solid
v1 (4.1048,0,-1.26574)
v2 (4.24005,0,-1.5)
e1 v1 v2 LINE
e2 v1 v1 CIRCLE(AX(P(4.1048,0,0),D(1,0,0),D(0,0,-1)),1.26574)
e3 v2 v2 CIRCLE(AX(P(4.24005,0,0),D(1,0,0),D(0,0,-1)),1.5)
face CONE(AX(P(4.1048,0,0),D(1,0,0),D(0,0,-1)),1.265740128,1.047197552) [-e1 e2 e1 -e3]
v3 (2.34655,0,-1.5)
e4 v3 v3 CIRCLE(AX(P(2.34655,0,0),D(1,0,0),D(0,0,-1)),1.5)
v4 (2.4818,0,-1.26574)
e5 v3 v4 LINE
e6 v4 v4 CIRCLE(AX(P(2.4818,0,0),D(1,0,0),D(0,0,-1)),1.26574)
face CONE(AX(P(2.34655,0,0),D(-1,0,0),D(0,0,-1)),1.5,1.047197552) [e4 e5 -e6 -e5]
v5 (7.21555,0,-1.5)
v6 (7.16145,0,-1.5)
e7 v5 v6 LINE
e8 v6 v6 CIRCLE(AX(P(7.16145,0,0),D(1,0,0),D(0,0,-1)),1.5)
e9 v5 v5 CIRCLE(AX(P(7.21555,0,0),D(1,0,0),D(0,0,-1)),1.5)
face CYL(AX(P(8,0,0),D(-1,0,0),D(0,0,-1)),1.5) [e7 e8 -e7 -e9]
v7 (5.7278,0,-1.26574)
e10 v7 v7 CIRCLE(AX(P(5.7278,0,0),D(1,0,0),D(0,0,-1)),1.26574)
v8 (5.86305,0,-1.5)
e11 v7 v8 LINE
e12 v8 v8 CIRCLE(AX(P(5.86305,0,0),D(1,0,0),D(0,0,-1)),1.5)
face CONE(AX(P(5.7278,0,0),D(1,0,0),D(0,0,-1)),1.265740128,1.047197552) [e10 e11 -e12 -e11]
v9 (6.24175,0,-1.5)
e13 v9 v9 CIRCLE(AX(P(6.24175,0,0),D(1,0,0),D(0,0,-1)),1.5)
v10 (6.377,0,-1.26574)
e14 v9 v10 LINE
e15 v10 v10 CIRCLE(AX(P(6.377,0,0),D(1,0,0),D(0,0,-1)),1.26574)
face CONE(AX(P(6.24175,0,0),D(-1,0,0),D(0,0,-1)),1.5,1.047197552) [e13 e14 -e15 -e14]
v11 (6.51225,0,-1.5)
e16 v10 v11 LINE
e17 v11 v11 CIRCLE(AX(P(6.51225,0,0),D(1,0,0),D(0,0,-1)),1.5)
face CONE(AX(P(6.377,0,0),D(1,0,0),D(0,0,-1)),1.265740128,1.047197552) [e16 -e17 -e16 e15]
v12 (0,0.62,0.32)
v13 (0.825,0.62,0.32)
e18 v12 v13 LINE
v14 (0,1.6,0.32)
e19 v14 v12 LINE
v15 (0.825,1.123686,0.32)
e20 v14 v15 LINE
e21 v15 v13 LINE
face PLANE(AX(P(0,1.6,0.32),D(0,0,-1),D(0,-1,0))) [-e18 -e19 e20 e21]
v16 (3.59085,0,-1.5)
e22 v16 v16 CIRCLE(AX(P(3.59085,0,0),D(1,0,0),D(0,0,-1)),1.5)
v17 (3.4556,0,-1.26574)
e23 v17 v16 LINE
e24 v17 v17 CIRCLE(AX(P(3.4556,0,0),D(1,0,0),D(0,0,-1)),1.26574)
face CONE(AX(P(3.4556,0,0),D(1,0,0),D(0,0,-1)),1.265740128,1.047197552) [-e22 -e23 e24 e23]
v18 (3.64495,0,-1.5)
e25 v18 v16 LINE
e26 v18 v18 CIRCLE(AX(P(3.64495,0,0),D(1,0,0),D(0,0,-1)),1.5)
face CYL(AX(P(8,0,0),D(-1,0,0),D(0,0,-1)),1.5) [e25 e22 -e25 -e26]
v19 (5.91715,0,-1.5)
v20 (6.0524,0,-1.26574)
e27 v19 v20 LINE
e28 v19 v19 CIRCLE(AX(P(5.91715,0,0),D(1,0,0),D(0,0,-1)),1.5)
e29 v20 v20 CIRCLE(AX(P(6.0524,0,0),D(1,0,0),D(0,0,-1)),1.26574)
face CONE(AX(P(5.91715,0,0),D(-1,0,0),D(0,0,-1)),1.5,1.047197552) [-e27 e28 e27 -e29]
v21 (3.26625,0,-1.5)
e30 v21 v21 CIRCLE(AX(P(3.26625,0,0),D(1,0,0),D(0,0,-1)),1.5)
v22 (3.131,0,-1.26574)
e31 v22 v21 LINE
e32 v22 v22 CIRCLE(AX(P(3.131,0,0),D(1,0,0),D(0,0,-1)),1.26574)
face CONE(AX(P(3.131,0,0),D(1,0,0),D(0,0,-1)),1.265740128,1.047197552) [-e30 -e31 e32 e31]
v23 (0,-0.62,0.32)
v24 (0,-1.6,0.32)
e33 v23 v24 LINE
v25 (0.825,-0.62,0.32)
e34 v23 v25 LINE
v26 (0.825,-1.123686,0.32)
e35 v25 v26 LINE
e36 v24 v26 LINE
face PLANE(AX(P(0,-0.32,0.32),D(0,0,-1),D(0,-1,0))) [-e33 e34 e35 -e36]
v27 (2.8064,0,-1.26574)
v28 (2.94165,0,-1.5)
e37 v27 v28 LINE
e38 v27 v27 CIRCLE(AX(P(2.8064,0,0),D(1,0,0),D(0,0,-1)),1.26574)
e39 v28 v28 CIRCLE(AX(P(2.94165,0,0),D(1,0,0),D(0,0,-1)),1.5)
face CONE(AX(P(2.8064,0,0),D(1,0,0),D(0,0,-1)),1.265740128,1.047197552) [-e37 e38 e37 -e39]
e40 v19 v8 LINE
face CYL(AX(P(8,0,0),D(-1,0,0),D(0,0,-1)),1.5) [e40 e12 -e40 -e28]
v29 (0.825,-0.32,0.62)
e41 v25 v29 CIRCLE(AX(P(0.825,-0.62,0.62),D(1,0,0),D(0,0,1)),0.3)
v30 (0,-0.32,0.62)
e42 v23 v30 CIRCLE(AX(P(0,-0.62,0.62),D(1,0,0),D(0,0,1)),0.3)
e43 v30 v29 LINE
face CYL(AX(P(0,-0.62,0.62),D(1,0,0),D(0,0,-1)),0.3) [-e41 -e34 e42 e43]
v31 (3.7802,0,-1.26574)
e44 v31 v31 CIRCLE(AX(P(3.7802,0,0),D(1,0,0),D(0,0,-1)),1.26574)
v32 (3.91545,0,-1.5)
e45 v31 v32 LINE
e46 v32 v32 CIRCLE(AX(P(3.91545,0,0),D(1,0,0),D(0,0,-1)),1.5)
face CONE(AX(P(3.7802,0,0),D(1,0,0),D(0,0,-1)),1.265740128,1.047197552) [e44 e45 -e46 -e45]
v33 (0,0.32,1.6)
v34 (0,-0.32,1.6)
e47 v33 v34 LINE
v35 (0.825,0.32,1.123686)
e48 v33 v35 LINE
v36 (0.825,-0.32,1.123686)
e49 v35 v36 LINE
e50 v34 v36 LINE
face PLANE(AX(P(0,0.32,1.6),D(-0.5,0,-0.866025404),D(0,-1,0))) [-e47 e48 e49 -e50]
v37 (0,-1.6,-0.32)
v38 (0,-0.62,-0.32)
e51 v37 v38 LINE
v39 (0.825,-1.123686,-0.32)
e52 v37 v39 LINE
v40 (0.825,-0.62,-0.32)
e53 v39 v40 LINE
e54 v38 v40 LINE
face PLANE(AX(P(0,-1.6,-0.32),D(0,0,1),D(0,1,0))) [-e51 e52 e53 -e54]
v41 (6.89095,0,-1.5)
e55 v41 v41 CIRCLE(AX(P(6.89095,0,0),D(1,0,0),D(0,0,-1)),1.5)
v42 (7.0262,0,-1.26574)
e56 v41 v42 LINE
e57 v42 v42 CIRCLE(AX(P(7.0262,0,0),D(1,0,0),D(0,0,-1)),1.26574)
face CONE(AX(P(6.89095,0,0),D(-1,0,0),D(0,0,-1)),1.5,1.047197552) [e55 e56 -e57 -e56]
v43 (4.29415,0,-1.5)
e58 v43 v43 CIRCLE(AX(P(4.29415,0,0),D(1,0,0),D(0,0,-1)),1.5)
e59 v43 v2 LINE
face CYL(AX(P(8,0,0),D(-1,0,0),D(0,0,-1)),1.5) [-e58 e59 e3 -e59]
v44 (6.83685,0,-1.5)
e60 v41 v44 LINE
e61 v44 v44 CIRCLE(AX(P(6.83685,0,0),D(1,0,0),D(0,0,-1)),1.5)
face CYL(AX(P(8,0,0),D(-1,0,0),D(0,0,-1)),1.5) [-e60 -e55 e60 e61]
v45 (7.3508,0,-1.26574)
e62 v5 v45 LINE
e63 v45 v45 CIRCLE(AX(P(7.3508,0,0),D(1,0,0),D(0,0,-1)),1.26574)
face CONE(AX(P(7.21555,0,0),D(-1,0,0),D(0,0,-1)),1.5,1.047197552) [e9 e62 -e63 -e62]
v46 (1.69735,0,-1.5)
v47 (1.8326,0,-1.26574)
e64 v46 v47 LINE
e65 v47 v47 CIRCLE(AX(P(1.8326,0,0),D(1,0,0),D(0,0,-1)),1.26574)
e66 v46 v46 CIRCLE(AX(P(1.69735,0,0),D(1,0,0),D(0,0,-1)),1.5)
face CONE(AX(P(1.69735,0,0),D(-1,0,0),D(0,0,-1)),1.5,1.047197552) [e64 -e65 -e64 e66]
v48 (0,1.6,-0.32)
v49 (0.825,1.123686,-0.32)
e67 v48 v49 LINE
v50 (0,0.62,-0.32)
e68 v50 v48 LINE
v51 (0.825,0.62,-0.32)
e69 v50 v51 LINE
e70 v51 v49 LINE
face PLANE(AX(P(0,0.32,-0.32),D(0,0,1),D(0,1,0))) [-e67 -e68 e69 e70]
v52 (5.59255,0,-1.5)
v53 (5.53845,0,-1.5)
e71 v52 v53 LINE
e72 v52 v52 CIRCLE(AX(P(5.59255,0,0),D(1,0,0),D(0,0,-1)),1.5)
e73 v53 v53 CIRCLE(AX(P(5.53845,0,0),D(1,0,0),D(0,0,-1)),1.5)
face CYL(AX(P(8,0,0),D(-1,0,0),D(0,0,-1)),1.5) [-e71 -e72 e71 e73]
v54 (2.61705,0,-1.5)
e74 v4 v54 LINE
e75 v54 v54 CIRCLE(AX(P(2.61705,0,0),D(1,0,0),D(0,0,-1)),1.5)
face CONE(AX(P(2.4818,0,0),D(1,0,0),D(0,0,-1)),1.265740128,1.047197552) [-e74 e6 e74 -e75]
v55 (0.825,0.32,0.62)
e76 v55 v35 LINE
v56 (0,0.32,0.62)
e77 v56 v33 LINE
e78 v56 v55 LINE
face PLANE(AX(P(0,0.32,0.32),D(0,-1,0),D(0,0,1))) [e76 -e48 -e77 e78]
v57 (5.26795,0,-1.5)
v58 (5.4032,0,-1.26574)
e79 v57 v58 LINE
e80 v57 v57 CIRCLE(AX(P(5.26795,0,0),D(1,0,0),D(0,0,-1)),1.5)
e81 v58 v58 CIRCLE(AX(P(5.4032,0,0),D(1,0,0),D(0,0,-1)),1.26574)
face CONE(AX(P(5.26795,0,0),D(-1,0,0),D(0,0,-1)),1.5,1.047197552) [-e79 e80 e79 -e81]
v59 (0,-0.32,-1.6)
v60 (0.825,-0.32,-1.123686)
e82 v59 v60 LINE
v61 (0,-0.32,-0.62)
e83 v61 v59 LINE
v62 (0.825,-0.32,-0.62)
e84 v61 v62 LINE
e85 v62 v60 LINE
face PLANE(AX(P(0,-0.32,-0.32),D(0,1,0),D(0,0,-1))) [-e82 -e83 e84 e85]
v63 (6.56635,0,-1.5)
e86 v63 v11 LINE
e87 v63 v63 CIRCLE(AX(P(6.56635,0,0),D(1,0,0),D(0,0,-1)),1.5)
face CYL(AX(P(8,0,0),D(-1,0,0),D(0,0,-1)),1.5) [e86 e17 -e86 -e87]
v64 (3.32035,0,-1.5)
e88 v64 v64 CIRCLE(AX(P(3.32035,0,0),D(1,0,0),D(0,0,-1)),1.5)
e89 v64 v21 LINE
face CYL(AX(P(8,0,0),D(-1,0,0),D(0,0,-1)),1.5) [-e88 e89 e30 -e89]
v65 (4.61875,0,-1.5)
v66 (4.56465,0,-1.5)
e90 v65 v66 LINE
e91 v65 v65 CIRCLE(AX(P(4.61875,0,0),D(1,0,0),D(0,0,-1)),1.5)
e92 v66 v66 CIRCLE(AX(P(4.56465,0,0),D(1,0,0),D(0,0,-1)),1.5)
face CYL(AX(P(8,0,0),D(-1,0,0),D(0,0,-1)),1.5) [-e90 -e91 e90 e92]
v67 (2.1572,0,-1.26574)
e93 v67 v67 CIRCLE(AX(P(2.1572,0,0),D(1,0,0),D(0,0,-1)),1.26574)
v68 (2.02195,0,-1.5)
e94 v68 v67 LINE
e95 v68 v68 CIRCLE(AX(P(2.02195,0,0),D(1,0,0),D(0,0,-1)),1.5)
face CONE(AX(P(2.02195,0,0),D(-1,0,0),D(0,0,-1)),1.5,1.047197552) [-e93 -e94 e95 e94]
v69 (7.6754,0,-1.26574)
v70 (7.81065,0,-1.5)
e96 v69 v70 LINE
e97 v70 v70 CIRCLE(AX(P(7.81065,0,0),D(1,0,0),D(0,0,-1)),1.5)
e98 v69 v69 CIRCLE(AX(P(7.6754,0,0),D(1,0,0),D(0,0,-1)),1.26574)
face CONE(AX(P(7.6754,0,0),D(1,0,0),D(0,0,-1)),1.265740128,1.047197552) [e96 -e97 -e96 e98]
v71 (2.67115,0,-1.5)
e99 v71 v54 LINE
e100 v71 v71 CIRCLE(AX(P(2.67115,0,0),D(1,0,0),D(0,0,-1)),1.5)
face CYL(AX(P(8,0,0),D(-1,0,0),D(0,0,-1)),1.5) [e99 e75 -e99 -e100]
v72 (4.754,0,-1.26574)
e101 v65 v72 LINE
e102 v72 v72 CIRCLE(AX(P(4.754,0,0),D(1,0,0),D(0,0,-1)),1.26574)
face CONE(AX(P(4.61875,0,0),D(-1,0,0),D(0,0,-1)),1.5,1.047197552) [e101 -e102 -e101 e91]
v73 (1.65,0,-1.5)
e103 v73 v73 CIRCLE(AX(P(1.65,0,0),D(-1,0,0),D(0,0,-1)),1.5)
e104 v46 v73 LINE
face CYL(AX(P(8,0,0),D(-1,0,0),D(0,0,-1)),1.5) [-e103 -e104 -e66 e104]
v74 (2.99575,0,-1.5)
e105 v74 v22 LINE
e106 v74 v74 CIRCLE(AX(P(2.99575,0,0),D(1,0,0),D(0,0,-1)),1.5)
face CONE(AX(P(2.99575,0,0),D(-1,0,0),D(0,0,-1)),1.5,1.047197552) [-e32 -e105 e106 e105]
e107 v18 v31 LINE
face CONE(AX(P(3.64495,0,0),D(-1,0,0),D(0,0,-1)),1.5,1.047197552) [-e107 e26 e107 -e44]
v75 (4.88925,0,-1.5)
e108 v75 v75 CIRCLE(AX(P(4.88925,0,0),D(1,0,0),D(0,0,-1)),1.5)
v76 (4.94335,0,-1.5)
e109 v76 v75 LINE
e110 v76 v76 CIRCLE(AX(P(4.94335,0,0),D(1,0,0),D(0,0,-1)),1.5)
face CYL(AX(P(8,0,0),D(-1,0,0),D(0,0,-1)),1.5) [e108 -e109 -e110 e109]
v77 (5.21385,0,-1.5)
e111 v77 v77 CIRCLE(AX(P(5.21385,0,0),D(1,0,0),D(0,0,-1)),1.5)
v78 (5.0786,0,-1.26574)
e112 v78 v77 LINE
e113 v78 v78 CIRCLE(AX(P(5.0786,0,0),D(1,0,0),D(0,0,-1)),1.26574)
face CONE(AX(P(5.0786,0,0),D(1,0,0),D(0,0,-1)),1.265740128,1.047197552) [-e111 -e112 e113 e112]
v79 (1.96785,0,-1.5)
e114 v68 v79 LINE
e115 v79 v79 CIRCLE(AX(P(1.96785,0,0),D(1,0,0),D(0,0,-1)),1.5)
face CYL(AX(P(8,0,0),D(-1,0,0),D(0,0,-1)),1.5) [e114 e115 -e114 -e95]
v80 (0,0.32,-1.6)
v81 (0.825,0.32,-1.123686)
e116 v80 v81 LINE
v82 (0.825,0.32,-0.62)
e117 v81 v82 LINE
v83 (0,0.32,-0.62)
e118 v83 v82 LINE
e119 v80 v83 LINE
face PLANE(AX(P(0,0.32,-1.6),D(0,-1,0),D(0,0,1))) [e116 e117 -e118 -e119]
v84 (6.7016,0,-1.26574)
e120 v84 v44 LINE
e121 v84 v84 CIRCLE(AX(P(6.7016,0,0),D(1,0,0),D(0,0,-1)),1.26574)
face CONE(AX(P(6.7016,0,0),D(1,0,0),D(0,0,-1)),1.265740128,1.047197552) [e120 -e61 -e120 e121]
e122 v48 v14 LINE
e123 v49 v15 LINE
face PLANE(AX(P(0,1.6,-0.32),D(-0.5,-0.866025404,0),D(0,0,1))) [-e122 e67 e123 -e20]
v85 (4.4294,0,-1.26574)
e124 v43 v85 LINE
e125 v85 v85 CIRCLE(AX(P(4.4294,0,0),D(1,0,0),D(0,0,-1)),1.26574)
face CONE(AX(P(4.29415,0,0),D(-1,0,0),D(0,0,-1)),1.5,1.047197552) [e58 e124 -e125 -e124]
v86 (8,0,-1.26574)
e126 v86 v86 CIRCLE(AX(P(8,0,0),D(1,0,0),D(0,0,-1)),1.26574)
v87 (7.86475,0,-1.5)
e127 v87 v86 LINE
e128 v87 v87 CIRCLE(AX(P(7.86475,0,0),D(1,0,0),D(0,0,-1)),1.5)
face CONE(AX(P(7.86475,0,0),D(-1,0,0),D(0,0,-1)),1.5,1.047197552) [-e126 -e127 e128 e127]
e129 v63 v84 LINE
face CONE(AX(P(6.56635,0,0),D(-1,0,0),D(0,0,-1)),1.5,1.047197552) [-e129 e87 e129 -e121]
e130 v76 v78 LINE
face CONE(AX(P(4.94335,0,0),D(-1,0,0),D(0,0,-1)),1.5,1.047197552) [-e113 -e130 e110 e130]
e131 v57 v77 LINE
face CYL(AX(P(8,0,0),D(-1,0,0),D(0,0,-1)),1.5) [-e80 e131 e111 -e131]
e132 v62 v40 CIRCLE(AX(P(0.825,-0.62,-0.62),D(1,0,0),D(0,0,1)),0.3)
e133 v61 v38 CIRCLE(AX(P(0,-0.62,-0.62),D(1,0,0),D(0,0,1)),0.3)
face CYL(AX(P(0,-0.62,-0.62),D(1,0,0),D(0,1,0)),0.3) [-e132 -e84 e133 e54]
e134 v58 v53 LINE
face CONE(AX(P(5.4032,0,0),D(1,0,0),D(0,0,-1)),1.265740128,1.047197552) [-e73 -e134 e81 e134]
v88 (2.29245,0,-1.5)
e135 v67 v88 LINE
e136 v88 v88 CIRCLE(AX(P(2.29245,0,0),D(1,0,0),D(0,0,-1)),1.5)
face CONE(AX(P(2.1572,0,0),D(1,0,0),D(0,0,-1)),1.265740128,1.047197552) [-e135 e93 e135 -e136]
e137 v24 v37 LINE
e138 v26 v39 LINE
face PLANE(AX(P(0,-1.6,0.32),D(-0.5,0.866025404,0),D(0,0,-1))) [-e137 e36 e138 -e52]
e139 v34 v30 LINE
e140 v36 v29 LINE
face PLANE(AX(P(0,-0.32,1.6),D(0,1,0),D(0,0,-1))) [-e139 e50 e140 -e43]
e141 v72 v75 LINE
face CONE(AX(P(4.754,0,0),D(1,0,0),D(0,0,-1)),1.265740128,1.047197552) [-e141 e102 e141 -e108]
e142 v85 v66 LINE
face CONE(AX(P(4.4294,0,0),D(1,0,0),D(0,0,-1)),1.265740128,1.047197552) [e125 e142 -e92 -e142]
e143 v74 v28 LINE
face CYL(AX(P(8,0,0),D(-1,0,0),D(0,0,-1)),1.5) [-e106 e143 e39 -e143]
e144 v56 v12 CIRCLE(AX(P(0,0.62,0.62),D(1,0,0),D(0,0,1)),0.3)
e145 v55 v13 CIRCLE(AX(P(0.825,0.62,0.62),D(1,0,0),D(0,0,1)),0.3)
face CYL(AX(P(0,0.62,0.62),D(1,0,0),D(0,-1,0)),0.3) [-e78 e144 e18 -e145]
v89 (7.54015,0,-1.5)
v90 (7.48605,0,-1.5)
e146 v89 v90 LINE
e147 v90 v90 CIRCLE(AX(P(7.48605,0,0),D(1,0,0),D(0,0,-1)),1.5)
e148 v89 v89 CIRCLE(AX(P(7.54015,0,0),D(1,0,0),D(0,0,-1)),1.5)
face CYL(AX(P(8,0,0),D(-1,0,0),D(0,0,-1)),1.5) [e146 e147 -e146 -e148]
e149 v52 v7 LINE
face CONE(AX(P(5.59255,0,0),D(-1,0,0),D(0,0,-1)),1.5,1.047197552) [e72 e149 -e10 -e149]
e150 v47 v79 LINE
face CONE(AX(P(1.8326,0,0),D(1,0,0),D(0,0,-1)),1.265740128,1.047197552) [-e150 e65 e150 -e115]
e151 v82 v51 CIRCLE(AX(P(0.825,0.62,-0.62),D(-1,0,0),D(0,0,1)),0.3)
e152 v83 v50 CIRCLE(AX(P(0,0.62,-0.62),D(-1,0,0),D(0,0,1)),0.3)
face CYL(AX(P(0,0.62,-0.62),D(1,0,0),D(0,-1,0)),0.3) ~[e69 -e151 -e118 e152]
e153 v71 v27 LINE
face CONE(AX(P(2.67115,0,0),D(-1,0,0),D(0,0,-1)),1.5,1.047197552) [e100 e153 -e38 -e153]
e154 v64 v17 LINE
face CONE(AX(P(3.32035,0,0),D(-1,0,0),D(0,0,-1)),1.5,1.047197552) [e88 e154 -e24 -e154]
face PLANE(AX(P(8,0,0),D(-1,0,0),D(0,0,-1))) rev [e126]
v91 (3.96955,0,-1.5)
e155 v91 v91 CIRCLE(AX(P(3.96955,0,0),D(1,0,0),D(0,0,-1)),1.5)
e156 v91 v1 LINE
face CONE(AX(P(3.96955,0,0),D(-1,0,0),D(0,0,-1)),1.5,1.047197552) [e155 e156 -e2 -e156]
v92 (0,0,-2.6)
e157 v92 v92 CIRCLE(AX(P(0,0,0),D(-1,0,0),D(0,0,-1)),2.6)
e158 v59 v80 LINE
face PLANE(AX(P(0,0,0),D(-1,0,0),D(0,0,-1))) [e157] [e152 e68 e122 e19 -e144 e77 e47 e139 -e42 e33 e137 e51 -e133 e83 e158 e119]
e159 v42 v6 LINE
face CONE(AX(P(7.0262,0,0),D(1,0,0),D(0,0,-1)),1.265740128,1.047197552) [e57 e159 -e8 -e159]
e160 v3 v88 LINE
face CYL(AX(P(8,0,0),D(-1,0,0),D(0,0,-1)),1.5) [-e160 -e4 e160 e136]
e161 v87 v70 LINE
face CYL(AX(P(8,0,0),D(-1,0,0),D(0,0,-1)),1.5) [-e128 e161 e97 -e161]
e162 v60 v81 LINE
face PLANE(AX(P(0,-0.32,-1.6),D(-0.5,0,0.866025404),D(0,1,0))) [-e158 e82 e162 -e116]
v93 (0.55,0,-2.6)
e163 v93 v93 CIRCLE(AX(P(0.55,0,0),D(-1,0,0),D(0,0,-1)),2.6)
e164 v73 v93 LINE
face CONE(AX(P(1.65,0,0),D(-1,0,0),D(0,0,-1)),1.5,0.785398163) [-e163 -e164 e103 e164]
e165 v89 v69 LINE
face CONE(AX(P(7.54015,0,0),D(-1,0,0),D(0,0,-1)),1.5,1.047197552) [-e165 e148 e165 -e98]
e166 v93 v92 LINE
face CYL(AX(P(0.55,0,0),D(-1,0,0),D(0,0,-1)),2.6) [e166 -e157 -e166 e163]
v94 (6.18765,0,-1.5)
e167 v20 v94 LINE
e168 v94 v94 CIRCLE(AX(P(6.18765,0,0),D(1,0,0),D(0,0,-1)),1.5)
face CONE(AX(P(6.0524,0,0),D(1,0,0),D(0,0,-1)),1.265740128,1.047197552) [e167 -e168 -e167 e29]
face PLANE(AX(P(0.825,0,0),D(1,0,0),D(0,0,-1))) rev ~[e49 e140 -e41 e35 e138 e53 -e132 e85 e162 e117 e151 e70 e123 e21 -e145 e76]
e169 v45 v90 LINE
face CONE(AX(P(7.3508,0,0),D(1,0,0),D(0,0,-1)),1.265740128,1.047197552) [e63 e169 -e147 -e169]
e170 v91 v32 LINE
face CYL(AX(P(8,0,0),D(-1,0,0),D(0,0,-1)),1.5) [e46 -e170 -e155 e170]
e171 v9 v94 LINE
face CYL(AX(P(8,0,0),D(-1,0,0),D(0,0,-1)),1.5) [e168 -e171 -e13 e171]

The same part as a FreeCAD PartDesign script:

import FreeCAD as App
import Part
import Sketcher
from FreeCAD import Vector
Q = App.Units.Quantity


def edges_at(feature, points):
    """Names of the edges that pass closest to the given points."""
    edges = feature.Shape.Edges
    near = lambda p: min(range(len(edges)), key=lambda i: edges[i].distToShape(Part.Vertex(*p))[0])
    return sorted({f"Edge{near(p) + 1}" for p in points})


def faces_at(feature, points):
    """Names of the faces that lie closest to the given points."""
    faces = feature.Shape.Faces
    near = lambda p: min(range(len(faces)), key=lambda i: faces[i].distToShape(Part.Vertex(*p))[0])
    return sorted({f"Face{near(p) + 1}" for p in points})


def add_polygon(sketch, points):
    """Adds a closed chain of lines whose ends are joined by coincident constraints."""
    first, n = sketch.GeometryCount, len(points)
    for a, b in zip(points, points[1:] + points[:1]):
        sketch.addGeometry(Part.LineSegment(App.Vector(*a, 0), App.Vector(*b, 0)), False)
    for i in range(n):
        sketch.addConstraint(Sketcher.Constraint("Coincident", first + i, 2, first + (i + 1) % n, 1))

doc = App.newDocument("Part")
body = doc.addObject("PartDesign::Body", "Body")

sketch1 = body.newObject("Sketcher::SketchObject", "Sketch")
sketch1.AttachmentSupport = (doc.getObject("XY_Plane"), [""])
sketch1.MapMode = "FlatFace"
add_polygon(sketch1, [(8, 1.5), (1.6, 1.5), (0.6, 2.6), (0, 2.6), (0, 0), (8, 0)])
sketch1.addConstraint([
    Sketcher.Constraint("Horizontal", 0),
    Sketcher.Constraint("Horizontal", 2),
    Sketcher.Constraint("Vertical", 3),
    Sketcher.Constraint("Horizontal", 4),
    Sketcher.Constraint("Vertical", 5),
    Sketcher.Constraint("Coincident", 3, 2, -1, 1),
    Sketcher.Constraint("DistanceX", 4, 1, 4, 2, 8.0),
    Sketcher.Constraint("Angle", 1, Q("135 deg")),
    Sketcher.Constraint("DistanceY", 3, 2, 3, 1, 2.6),
    Sketcher.Constraint("DistanceY", 5, 1, 5, 2, 1.5),
    Sketcher.Constraint("DistanceX", 0, 2, 0, 1, 6.35),
])
revolution = body.newObject("PartDesign::Revolution", "Revolution")
revolution.Profile = sketch1
revolution.ReferenceAxis = (sketch1, ["H_Axis"])
revolution.Angle = 360

sketch2 = body.newObject("Sketcher::SketchObject", "Sketch001")
sketch2.AttachmentSupport = (doc.getObject("YZ_Plane"), [""])
sketch2.MapMode = "FlatFace"
add_polygon(sketch2, [(0.3, -0.3), (1.6, -0.3), (1.6, 0.3), (0.3, 0.3), (0.3, 1.6), (-0.3, 1.6), (-0.3, 0.3), (-1.6, 0.3), (-1.6, -0.3), (-0.3, -0.3), (-0.3, -1.6), (0.3, -1.6)])
sketch2.addConstraint([
    Sketcher.Constraint("Horizontal", 0),
    Sketcher.Constraint("Vertical", 1),
    Sketcher.Constraint("Horizontal", 2),
    Sketcher.Constraint("Vertical", 3),
    Sketcher.Constraint("Horizontal", 4),
    Sketcher.Constraint("Vertical", 5),
    Sketcher.Constraint("Horizontal", 6),
    Sketcher.Constraint("Vertical", 7),
    Sketcher.Constraint("Horizontal", 8),
    Sketcher.Constraint("Vertical", 9),
    Sketcher.Constraint("Horizontal", 10),
    Sketcher.Constraint("Vertical", 11),
    Sketcher.Constraint("Symmetric", 0, 2, 6, 2, -1, 1),
    Sketcher.Constraint("Symmetric", 2, 2, 8, 2, -1, 1),
    Sketcher.Constraint("Symmetric", 4, 2, 10, 2, -1, 1),
    Sketcher.Constraint("Symmetric", 2, 2, 5, 2, -2),
    Sketcher.Constraint("Equal", 10, 1),
    Sketcher.Constraint("Equal", 8, 3),
    Sketcher.Constraint("DistanceX", 0, 1, 0, 2, 1.28),
    Sketcher.Constraint("DistanceX", 4, 2, 4, 1, 0.64),
])
pocket1 = body.newObject("PartDesign::Pocket", "Pocket")
pocket1.Profile = sketch2
pocket1.Length = 0.825
pocket1.Reversed = True
doc.recompute()

draft = body.newObject("PartDesign::Draft", "Draft")
draft.Base = (pocket1, faces_at(pocket1, [
    (0.412, 1.6, 0),
    (0.412, 0, 1.6),
    (0.412, -1.6, 0),
    (0.412, 0, -1.6),
]))
draft.NeutralPlane = (doc.getObject("YZ_Plane"), [""])
draft.Angle = 30
draft.Reversed = True
doc.recompute()

fillet = body.newObject("PartDesign::Fillet", "Fillet")
fillet.Base = (draft, edges_at(draft, [
    (0.412, 0.32, 0.32),
    (0.412, -0.32, 0.32),
    (0.412, -0.32, -0.32),
    (0.412, 0.32, -0.32),
]))
fillet.Radius = 0.3

sketch3 = body.newObject("Sketcher::SketchObject", "Sketch002")
sketch3.AttachmentSupport = (doc.getObject("XY_Plane"), [""])
sketch3.MapMode = "FlatFace"
add_polygon(sketch3, [(8, 1.27), (8.14, 1.5), (8.14, 1.77), (7.86, 1.77), (7.86, 1.5)])
sketch3.addConstraint([
    Sketcher.Constraint("Vertical", 1),
    Sketcher.Constraint("Horizontal", 2),
    Sketcher.Constraint("Vertical", 3),
    Sketcher.Constraint("Horizontal", 0, 2, 3, 2),
    Sketcher.Constraint("Equal", 2, 1),
    Sketcher.Constraint("Equal", 0, 4),
    Sketcher.Constraint("Angle", 0, Q("60 deg")),
    Sketcher.Constraint("DistanceX", -1, 1, 4, 2, 8.0),
    Sketcher.Constraint("DistanceY", -1, 1, 0, 2, 1.5),
    Sketcher.Constraint("DistanceX", 2, 2, 2, 1, 0.2705),
])
groove = body.newObject("PartDesign::Groove", "Groove")
groove.Profile = sketch3
groove.ReferenceAxis = (sketch3, ["H_Axis"])
groove.Angle = 360
doc.recompute()

linearpattern = body.newObject("PartDesign::LinearPattern", "LinearPattern")
linearpattern.Originals = [groove]
linearpattern.Direction = (doc.getObject("X_Axis"), [""])
linearpattern.Mode = "offset"
linearpattern.Offset = 0.3246
linearpattern.Occurrences = 20
linearpattern.Reversed = True
body.Tip = linearpattern

doc.recompute()
